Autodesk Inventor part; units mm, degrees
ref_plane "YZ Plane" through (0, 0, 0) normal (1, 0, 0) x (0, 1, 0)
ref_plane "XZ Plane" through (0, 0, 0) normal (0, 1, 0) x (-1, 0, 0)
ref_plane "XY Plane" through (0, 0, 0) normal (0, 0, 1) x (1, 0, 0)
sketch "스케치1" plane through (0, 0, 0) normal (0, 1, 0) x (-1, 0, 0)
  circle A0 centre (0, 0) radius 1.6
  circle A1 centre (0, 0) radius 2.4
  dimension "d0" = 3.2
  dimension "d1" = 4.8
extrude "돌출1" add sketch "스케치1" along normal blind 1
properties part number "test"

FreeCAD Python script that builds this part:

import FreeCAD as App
import Part
import Sketcher

doc = App.newDocument("Part")
body = doc.addObject("PartDesign::Body", "Body")

# Sketch on XZ plane
sketch1 = body.newObject("Sketcher::SketchObject", "Sketch")
sketch1.AttachmentSupport = (doc.getObject("XZ_Plane"), [""])
sketch1.MapMode = "FlatFace"
sketch1.addGeometry(Part.Circle(App.Vector(0, 0, 0), App.Vector(0, 0, 1), 2.4), False)
sketch1.addGeometry(Part.Circle(App.Vector(0, 0, 0), App.Vector(0, 0, 1), 1.6), False)
sketch1.addConstraint(Sketcher.Constraint("Coincident", 0, 3, -1, 1))
sketch1.addConstraint(Sketcher.Constraint("Coincident", 1, 3, -1, 1))
sketch1.addConstraint(Sketcher.Constraint("Diameter", 0, 4.8))
sketch1.addConstraint(Sketcher.Constraint("Diameter", 1, 3.2))
pad1 = body.newObject("PartDesign::Pad", "Pad")
pad1.Profile = sketch1
pad1.Length = 1
pad1.Reversed = True

doc.recompute()
